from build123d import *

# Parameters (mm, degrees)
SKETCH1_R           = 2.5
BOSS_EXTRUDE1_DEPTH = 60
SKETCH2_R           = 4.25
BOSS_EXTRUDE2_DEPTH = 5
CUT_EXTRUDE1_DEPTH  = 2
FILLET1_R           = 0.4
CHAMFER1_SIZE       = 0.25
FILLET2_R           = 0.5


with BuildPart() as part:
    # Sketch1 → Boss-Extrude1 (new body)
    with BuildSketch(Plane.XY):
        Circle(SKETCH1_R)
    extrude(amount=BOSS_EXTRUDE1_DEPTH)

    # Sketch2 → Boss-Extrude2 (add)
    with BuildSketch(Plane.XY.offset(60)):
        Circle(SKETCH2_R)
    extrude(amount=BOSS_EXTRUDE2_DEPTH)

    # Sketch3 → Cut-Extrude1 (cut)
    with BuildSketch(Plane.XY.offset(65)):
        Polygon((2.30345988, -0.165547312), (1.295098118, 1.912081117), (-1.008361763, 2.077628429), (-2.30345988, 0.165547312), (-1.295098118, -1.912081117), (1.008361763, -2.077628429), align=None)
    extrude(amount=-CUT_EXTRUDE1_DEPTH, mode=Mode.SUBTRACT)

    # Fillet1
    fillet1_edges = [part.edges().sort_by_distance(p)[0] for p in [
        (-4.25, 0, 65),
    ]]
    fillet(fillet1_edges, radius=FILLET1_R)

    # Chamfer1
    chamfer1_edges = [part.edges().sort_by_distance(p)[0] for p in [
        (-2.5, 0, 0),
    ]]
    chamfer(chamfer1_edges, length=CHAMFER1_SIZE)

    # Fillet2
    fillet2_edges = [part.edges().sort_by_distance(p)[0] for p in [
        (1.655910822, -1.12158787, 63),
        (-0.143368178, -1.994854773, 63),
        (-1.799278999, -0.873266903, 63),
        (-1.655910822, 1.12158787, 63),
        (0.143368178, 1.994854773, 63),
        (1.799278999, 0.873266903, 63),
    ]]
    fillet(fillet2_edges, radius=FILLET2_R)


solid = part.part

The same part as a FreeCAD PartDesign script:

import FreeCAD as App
import Part
import Sketcher

V = App.Vector


def edges_at(feature, points):
    """Names of the edges that pass closest to the given points."""
    edges = feature.Shape.Edges
    near = lambda p: min(range(len(edges)), key=lambda i: edges[i].distToShape(Part.Vertex(*p))[0])
    return sorted({f"Edge{near(p) + 1}" for p in points})


def add_polygon(sketch, points):
    """Adds a closed chain of lines whose ends are joined by coincident constraints."""
    first, n = sketch.GeometryCount, len(points)
    for a, b in zip(points, points[1:] + points[:1]):
        sketch.addGeometry(Part.LineSegment(App.Vector(*a, 0), App.Vector(*b, 0)), False)
    for i in range(n):
        sketch.addConstraint(Sketcher.Constraint("Coincident", first + i, 2, first + (i + 1) % n, 1))

doc = App.newDocument("Part")
body = doc.addObject("PartDesign::Body", "Body")

# Sketch on XY plane
sketch1 = doc.addObject("Sketcher::SketchObject", "Sketch")
body.addObject(sketch1)
sketch1.AttachmentSupport = (doc.XY_Plane, [""])
sketch1.MapMode = "FlatFace"
sketch1.addGeometry(Part.Circle(V(0, 0, 0), V(0, 0, 1), 2.5), False)
sketch1.addConstraint(Sketcher.Constraint("Coincident", 0, 3, -1, 1))
sketch1.addConstraint(Sketcher.Constraint("Diameter", 0, 5.0))
pad1 = doc.addObject("PartDesign::Pad", "Pad")
body.addObject(pad1)
pad1.Profile = sketch1
pad1.Length = 60

# Sketch on XY plane
sketch2 = doc.addObject("Sketcher::SketchObject", "Sketch001")
body.addObject(sketch2)
sketch2.AttachmentSupport = (doc.XY_Plane, [""])
sketch2.MapMode = "FlatFace"
sketch2.AttachmentOffset = App.Placement(V(0, 0, 60), App.Rotation())
sketch2.addGeometry(Part.Circle(V(0, 0, 0), V(0, 0, 1), 4.2), False)
sketch2.addConstraint(Sketcher.Constraint("Coincident", 0, 3, -1, 1))
sketch2.addConstraint(Sketcher.Constraint("Diameter", 0, 8.5))
pad2 = doc.addObject("PartDesign::Pad", "Pad001")
body.addObject(pad2)
pad2.Profile = sketch2
pad2.Length = 5

# Sketch on XY plane
sketch3 = doc.addObject("Sketcher::SketchObject", "Sketch002")
body.addObject(sketch3)
sketch3.AttachmentSupport = (doc.XY_Plane, [""])
sketch3.MapMode = "FlatFace"
sketch3.AttachmentOffset = App.Placement(V(0, 0, 65), App.Rotation())
add_polygon(sketch3, [(2.3, -0.2), (1.3, 1.9), (-1, 2.1), (-2.3, 0.2), (-1.3, -1.9), (1, -2.1)])  # lines 0-5
sketch3.addConstraint(Sketcher.Constraint("Symmetric", 0, 2, 3, 2, -1, 1))
sketch3.addConstraint(Sketcher.Constraint("Symmetric", 1, 2, 4, 2, -1, 1))
sketch3.addConstraint(Sketcher.Constraint("Symmetric", 2, 2, 5, 2, -1, 1))
sketch3.addConstraint(Sketcher.Constraint("Equal", 0, 1))
sketch3.addConstraint(Sketcher.Constraint("Equal", 1, 2))
sketch3.addConstraint(Sketcher.Constraint("Distance", 0, 2.309401))
sketch3.addConstraint(Sketcher.Constraint("DistanceX", -1, 1, 0, 2, 1.295098))
sketch3.addConstraint(Sketcher.Constraint("DistanceX", 2, 2, 1, 2, 1.295098))
sketch3.addConstraint(Sketcher.Constraint("DistanceY", -1, 1, 0, 2, 1.912081))
pocket1 = doc.addObject("PartDesign::Pocket", "Pocket")
body.addObject(pocket1)
pocket1.Profile = sketch3
pocket1.Length = 2
doc.recompute()

fillet = doc.addObject("PartDesign::Fillet", "Fillet")
body.addObject(fillet)
fillet.Base = (pocket1, edges_at(pocket1, [(-4.25, 0, 65)]))
fillet.Radius = 0.4
doc.recompute()

chamfer = doc.addObject("PartDesign::Chamfer", "Chamfer")
body.addObject(chamfer)
chamfer.Base = (fillet, edges_at(fillet, [(-2.5, 0, 0)]))
chamfer.Size = 0.25
doc.recompute()

fillet2 = doc.addObject("PartDesign::Fillet", "Fillet001")
body.addObject(fillet2)
fillet2.Base = (chamfer, edges_at(chamfer, [
    (1.656, -1.122, 63),
    (-0.143, -1.995, 63),
    (-1.799, -0.873, 63),
    (-1.656, 1.122, 63),
    (0.143, 1.995, 63),
    (1.799, 0.873, 63),
]))
fillet2.Radius = 0.5

doc.recompute()
